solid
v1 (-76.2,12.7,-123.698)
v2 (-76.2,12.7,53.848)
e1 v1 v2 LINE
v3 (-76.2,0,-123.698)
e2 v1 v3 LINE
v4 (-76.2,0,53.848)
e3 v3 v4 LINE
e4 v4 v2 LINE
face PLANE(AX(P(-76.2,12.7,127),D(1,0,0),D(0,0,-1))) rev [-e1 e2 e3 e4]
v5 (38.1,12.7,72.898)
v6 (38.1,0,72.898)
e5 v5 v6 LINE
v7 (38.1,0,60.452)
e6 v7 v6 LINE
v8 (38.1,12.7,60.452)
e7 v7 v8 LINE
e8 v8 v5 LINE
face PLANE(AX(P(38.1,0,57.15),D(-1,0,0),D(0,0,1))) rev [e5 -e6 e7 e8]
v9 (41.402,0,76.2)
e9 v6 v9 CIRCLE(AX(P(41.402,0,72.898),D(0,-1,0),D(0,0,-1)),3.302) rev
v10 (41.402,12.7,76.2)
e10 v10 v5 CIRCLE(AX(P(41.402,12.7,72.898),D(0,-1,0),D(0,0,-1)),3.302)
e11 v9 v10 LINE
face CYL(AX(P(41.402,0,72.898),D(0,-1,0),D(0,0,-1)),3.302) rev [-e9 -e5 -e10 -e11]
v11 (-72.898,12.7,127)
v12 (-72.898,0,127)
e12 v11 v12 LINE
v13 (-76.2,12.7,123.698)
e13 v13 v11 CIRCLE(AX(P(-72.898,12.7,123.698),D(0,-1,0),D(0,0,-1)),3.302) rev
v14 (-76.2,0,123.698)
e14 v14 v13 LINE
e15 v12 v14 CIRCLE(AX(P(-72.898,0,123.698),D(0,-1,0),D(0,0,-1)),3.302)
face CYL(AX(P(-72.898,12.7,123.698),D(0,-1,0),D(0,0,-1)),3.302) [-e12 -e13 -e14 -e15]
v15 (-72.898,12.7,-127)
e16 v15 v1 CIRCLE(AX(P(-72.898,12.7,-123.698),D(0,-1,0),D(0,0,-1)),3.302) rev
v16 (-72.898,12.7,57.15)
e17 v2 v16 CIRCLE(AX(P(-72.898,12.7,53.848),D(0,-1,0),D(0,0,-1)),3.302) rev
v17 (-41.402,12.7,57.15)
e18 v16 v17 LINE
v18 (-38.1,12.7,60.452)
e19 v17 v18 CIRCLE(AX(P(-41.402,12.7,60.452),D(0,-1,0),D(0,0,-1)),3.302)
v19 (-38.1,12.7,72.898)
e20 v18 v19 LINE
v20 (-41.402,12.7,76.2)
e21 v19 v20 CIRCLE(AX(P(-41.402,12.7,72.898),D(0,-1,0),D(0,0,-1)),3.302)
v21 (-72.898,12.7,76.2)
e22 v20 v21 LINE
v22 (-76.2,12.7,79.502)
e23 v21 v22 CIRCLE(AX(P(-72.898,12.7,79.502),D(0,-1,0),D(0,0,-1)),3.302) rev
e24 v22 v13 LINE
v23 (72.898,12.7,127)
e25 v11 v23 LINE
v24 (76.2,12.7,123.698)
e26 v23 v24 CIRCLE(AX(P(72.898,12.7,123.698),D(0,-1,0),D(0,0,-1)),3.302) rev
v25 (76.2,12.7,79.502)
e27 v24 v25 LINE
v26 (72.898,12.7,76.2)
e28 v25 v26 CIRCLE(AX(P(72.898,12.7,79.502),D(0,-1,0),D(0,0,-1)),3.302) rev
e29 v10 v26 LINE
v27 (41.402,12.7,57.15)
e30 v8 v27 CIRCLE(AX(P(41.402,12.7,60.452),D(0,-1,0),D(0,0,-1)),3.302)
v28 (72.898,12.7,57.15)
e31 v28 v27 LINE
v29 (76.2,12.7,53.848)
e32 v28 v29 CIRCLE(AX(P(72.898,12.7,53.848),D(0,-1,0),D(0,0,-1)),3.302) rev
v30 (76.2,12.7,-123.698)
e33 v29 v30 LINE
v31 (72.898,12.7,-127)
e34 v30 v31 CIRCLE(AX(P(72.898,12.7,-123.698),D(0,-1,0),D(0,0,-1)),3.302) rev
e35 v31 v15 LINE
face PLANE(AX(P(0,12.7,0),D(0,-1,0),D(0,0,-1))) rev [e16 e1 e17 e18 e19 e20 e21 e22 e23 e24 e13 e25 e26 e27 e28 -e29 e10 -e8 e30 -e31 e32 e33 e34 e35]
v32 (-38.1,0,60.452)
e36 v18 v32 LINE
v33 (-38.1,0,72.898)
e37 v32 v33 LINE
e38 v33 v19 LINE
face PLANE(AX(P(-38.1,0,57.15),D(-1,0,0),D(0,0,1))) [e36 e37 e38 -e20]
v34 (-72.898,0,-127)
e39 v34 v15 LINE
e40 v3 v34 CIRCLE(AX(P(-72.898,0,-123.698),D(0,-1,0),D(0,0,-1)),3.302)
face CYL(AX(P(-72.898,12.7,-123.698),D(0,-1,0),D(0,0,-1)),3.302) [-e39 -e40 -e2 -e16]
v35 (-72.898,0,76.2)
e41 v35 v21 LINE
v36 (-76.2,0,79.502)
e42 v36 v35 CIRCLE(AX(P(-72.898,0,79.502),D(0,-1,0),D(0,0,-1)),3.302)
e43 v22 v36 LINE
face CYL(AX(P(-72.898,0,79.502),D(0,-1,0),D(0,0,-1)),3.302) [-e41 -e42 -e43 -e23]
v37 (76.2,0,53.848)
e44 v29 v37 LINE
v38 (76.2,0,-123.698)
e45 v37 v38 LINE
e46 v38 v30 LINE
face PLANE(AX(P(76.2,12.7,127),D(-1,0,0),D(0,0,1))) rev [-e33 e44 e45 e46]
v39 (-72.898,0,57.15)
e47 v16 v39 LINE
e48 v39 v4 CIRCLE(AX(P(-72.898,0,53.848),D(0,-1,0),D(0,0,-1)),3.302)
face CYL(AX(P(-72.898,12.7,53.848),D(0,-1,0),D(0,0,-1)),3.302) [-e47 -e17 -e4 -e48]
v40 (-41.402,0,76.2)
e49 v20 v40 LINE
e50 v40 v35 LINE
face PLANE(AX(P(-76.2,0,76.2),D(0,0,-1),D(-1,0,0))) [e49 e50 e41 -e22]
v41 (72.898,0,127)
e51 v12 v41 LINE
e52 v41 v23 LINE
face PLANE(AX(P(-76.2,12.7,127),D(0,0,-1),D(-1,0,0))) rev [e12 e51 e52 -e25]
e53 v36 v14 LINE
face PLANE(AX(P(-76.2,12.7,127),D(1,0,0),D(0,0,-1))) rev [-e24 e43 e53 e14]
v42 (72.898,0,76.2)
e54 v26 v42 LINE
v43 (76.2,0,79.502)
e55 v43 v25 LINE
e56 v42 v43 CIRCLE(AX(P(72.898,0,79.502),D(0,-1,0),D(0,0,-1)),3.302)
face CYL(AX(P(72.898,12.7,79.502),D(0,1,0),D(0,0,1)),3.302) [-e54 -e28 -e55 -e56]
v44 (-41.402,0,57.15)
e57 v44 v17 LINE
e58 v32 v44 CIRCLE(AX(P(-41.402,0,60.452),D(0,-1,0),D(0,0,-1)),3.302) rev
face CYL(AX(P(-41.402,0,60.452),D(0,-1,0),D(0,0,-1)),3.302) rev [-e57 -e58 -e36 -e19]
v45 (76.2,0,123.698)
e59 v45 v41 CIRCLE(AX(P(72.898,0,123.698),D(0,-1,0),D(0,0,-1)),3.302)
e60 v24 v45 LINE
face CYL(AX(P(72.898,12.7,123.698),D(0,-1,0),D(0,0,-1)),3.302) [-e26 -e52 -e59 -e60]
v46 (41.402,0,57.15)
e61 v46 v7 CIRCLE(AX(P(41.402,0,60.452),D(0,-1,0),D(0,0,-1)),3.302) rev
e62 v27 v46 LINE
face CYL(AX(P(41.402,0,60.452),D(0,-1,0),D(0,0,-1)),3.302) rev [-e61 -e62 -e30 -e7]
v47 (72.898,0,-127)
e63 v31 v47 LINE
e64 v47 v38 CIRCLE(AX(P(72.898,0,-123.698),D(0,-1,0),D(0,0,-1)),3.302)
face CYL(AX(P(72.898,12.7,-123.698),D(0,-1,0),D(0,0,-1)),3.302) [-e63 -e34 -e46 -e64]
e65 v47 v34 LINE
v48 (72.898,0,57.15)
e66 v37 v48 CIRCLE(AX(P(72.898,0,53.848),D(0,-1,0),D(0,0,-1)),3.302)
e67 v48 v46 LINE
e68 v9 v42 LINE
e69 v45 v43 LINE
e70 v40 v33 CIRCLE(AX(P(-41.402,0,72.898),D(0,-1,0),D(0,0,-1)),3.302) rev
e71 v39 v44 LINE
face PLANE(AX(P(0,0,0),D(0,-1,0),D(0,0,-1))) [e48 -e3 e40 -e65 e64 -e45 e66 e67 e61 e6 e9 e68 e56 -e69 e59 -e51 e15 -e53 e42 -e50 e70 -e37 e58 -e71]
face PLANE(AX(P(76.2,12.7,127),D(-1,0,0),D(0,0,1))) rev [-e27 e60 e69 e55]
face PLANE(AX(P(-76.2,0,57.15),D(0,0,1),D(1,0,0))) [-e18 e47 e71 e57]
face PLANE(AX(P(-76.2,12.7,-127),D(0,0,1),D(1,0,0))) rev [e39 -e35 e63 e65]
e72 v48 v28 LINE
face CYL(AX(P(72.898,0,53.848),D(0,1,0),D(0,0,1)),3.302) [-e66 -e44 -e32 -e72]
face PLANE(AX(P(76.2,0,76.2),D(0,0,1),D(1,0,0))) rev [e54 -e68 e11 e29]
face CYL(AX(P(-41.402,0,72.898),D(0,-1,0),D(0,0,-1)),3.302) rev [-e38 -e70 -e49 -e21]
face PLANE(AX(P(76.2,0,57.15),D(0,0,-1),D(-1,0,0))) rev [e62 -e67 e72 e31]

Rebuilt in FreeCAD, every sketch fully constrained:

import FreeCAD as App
import Part
import Sketcher

V = App.Vector
Q = App.Units.Quantity


def edges_at(feature, points):
    """Names of the edges that pass closest to the given points."""
    edges = feature.Shape.Edges
    near = lambda p: min(range(len(edges)), key=lambda i: edges[i].distToShape(Part.Vertex(*p))[0])
    return sorted({f"Edge{near(p) + 1}" for p in points})

doc = App.newDocument("Part")
body = doc.addObject("PartDesign::Body", "Body")

# Sketch on XZ plane
sketch1 = body.newObject("Sketcher::SketchObject", "Sketch")
sketch1.AttachmentSupport = (doc.getObject("XZ_Plane"), [""])
sketch1.MapMode = "FlatFace"
sketch1.addGeometry(Part.LineSegment(V(-76, -127, 0), V(-76, 127, 0)), False)
sketch1.addGeometry(Part.LineSegment(V(-76, 127, 0), V(76, 127, 0)), False)
sketch1.addGeometry(Part.LineSegment(V(76, 127, 0), V(76, -127, 0)), False)
sketch1.addGeometry(Part.LineSegment(V(76, -127, 0), V(-76, -127, 0)), False)
sketch1.addConstraint(Sketcher.Constraint("Coincident", 0, 2, 1, 1))
sketch1.addConstraint(Sketcher.Constraint("Coincident", 1, 2, 2, 1))
sketch1.addConstraint(Sketcher.Constraint("Coincident", 2, 2, 3, 1))
sketch1.addConstraint(Sketcher.Constraint("Coincident", 3, 2, 0, 1))
sketch1.addConstraint(Sketcher.Constraint("Vertical", 0))
sketch1.addConstraint(Sketcher.Constraint("Horizontal", 1))
sketch1.addConstraint(Sketcher.Constraint("Vertical", 2))
sketch1.addConstraint(Sketcher.Constraint("Horizontal", 3))
sketch1.addConstraint(Sketcher.Constraint("Symmetric", 0, 2, 2, 2, -1, 1))
sketch1.addConstraint(Sketcher.Constraint("DistanceX", 1, 1, 1, 2, Q("6 in")))
sketch1.addConstraint(Sketcher.Constraint("DistanceY", 0, 1, 0, 2, Q("10 in")))
pad1 = body.newObject("PartDesign::Pad", "Pad")
pad1.Profile = sketch1
pad1.Length = Q("0.5 in")
pad1.Reversed = True

# Sketch on XZ plane
sketch2 = body.newObject("Sketcher::SketchObject", "Sketch001")
sketch2.AttachmentSupport = (doc.getObject("XZ_Plane"), [""])
sketch2.MapMode = "FlatFace"
sketch2.AttachmentOffset = App.Placement(V(0, 0, -0.5 * 25.4), App.Rotation())
sketch2.addGeometry(Part.LineSegment(V(38, 57, 0), V(38, 76, 0)), False)
sketch2.addGeometry(Part.LineSegment(V(38, 76, 0), V(76, 76, 0)), False)
sketch2.addGeometry(Part.LineSegment(V(76, 76, 0), V(76, 57, 0)), False)
sketch2.addGeometry(Part.LineSegment(V(76, 57, 0), V(38, 57, 0)), False)
sketch2.addConstraint(Sketcher.Constraint("Coincident", 0, 2, 1, 1))
sketch2.addConstraint(Sketcher.Constraint("Coincident", 1, 2, 2, 1))
sketch2.addConstraint(Sketcher.Constraint("Coincident", 2, 2, 3, 1))
sketch2.addConstraint(Sketcher.Constraint("Coincident", 3, 2, 0, 1))
sketch2.addConstraint(Sketcher.Constraint("Vertical", 0))
sketch2.addConstraint(Sketcher.Constraint("Horizontal", 1))
sketch2.addConstraint(Sketcher.Constraint("Vertical", 2))
sketch2.addConstraint(Sketcher.Constraint("Horizontal", 3))
sketch2.addConstraint(Sketcher.Constraint("DistanceX", 1, 1, 1, 2, Q("1.5 in")))
sketch2.addConstraint(Sketcher.Constraint("DistanceY", -1, 1, 0, 2, Q("3 in")))
sketch2.addConstraint(Sketcher.Constraint("DistanceX", -1, 1, 1, 2, Q("3 in")))
sketch2.addConstraint(Sketcher.Constraint("DistanceY", 0, 1, 0, 2, Q("0.75 in")))
pocket1 = body.newObject("PartDesign::Pocket", "Pocket")
pocket1.Profile = sketch2
pocket1.Type = "ThroughAll"
pocket1.Reversed = True
doc.recompute()

fillet = body.newObject("PartDesign::Fillet", "Fillet")
fillet.Base = (pocket1, edges_at(pocket1, [(38.1, 6.35, 76.2), (38.1, 6.35, 57.15)]))
fillet.Radius = Q("0.13 in")
doc.recompute()

mirrored = body.newObject("PartDesign::Mirrored", "Mirrored")
mirrored.Originals = [pocket1]
mirrored.MirrorPlane = (doc.getObject("YZ_Plane"), [""])
body.Tip = mirrored
doc.recompute()

fillet2 = body.newObject("PartDesign::Fillet", "Fillet001")
fillet2.Base = (mirrored, edges_at(mirrored, [(-38.1, 6.35, 76.2), (-38.1, 6.35, 57.15)]))
fillet2.Radius = Q("0.13 in")
doc.recompute()

fillet3 = body.newObject("PartDesign::Fillet", "Fillet002")
fillet3.Base = (fillet2, edges_at(fillet2, [
    (76.2, 6.35, 57.15),
    (76.2, 6.35, 76.2),
    (-76.2, 6.35, 76.2),
    (-76.2, 6.35, 57.15),
    (76.2, 6.35, 127),
    (-76.2, 6.35, 127),
    (-76.2, 6.35, -127),
    (76.2, 6.35, -127),
]))
fillet3.Radius = Q("0.13 in")

doc.recompute()
